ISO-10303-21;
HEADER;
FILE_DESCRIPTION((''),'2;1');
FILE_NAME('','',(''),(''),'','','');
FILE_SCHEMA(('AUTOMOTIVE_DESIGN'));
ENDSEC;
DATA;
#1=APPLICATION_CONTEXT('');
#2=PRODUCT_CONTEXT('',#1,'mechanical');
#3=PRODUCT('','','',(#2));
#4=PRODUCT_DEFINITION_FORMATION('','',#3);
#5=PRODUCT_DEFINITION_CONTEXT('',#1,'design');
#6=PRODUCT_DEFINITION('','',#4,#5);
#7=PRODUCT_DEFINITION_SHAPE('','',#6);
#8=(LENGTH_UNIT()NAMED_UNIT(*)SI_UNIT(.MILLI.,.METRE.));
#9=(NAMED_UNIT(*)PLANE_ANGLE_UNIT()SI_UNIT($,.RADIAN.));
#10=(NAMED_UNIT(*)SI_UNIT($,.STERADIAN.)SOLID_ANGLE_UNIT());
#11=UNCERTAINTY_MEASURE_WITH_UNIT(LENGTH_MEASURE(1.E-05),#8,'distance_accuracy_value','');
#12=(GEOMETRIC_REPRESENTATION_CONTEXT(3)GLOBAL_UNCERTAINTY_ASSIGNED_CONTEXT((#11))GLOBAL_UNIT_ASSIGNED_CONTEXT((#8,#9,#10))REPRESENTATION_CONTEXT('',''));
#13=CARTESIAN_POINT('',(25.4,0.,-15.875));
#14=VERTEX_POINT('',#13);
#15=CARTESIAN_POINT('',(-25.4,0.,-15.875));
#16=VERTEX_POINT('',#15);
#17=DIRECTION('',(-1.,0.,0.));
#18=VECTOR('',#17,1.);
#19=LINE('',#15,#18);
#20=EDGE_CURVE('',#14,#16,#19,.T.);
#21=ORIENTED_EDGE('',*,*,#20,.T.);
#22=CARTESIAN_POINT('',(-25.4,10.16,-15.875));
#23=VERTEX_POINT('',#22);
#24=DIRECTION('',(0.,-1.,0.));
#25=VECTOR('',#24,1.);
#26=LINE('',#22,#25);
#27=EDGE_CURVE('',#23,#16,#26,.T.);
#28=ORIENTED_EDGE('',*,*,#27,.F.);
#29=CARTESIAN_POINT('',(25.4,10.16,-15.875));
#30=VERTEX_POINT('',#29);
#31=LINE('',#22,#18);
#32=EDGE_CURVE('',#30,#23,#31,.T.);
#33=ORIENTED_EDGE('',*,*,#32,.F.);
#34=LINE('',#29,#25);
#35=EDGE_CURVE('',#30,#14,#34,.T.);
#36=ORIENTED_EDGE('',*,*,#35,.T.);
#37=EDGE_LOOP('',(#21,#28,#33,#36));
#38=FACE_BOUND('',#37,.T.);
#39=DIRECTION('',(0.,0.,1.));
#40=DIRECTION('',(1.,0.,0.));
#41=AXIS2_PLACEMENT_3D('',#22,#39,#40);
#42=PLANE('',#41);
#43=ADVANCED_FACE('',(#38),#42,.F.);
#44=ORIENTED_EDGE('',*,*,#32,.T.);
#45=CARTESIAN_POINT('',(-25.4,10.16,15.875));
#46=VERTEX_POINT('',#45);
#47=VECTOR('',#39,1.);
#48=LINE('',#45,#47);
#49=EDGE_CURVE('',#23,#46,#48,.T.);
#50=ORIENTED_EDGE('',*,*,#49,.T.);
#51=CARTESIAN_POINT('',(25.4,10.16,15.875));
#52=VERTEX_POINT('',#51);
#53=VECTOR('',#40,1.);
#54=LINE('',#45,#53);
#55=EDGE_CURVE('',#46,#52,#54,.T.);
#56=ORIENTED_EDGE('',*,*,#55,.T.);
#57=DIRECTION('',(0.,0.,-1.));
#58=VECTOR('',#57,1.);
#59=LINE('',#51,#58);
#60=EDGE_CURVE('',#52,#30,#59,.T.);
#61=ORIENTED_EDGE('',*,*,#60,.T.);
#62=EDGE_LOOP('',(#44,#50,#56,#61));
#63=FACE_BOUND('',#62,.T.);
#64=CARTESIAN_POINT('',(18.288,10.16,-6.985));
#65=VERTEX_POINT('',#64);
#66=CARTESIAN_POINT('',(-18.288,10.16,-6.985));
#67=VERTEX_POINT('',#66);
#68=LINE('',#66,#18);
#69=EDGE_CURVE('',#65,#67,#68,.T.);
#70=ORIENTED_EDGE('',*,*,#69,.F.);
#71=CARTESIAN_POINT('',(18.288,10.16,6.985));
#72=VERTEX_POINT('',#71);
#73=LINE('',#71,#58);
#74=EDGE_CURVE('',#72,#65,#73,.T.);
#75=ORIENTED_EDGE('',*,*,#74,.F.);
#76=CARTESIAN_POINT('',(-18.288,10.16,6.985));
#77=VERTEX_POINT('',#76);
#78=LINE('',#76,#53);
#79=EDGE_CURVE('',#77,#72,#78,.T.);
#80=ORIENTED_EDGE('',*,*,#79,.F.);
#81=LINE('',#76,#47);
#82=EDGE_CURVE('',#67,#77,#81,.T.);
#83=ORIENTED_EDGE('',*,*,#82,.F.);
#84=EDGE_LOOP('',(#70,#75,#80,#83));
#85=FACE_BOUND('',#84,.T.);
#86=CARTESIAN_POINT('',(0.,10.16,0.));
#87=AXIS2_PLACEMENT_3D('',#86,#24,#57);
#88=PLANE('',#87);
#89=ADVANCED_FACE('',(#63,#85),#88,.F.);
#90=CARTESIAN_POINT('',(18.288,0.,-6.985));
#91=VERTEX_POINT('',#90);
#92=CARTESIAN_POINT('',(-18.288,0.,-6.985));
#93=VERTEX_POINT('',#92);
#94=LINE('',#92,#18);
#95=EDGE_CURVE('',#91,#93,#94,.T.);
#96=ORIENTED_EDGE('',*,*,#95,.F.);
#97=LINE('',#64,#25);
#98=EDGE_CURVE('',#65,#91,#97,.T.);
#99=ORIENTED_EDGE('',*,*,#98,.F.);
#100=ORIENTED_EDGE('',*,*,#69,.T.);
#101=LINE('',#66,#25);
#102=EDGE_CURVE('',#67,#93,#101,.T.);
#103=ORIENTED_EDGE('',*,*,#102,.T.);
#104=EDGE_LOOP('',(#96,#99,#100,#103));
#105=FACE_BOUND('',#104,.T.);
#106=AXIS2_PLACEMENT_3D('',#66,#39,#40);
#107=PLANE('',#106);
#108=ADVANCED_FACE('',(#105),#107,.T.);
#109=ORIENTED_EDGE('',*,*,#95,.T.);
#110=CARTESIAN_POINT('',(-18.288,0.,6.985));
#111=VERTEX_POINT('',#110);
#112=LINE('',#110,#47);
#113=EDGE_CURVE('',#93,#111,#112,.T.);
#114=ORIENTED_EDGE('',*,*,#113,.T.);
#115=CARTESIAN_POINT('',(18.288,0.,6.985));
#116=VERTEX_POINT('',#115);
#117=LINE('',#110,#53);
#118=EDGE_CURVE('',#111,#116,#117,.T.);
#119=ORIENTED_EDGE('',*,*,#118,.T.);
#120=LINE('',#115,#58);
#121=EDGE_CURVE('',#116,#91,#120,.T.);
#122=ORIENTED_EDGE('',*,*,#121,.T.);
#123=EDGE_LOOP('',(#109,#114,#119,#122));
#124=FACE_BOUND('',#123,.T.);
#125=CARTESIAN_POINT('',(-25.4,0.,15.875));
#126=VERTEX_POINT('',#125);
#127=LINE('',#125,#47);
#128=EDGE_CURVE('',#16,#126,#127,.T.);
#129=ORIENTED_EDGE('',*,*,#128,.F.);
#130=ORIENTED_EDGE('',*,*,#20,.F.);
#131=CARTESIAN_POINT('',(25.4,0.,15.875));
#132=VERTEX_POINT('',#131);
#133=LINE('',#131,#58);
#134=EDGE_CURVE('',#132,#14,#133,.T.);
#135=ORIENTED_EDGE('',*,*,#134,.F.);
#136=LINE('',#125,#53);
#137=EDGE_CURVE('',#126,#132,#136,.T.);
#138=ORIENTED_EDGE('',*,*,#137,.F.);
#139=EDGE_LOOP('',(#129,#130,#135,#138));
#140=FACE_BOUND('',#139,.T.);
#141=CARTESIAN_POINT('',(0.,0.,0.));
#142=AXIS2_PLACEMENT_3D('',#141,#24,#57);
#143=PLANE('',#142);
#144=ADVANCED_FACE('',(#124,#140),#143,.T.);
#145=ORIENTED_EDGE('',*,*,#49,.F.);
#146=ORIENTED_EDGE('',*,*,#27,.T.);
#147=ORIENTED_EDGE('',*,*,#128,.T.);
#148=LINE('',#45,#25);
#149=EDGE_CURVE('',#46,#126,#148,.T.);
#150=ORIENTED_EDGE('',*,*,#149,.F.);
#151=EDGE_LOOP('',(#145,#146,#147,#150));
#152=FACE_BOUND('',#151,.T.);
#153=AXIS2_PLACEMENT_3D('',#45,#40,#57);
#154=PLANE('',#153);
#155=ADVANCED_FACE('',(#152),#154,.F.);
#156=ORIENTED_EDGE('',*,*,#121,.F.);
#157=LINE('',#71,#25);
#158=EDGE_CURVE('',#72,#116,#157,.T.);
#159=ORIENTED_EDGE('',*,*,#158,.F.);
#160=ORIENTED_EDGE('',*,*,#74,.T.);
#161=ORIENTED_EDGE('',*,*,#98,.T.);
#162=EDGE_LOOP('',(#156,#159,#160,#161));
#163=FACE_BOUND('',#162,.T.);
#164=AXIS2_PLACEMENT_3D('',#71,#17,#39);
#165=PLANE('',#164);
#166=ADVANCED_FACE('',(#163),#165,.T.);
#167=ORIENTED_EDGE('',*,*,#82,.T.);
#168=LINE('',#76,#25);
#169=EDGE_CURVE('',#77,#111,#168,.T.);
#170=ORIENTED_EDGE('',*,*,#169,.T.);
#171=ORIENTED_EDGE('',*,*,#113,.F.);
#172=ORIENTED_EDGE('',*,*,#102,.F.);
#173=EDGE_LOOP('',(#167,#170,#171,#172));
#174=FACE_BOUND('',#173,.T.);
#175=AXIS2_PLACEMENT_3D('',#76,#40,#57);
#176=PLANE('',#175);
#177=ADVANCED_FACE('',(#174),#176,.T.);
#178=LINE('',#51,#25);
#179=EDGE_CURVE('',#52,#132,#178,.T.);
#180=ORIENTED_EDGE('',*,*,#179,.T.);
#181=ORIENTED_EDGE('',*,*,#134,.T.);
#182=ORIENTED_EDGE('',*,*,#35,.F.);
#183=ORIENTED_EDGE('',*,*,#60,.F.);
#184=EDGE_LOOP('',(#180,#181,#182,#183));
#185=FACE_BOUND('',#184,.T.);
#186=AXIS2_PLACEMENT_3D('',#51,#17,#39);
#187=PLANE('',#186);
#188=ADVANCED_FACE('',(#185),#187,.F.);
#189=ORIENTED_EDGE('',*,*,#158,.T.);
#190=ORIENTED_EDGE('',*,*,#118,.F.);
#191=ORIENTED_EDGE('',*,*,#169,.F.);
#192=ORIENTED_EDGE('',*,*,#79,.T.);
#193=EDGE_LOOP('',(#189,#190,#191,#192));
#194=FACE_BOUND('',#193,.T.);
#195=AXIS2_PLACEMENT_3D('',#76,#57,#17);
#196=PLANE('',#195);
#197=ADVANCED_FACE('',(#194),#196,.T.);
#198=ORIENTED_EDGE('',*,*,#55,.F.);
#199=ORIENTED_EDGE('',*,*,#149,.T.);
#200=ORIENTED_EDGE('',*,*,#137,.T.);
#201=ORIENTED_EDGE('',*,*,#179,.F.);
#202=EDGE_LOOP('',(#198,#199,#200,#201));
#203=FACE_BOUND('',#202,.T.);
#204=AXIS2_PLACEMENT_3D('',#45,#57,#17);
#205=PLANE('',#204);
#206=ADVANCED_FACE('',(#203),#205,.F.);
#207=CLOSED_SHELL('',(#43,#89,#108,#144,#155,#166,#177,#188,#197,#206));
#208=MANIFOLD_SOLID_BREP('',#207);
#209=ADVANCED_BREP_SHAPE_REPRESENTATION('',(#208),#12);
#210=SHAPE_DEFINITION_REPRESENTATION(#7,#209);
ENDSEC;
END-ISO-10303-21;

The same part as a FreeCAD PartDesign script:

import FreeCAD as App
import Part
import Sketcher

V = App.Vector
Q = App.Units.Quantity

doc = App.newDocument("Part")
body = doc.addObject("PartDesign::Body", "Body")

# Sketch on XZ plane
sketch1 = body.newObject("Sketcher::SketchObject", "Sketch")
sketch1.AttachmentSupport = (doc.getObject("XZ_Plane"), [""])
sketch1.MapMode = "FlatFace"
sketch1.addGeometry([
    Part.LineSegment(V(-25, -16, 0), V(-25, 16, 0)),  # 0
    Part.LineSegment(V(-25, 16, 0), V(25, 16, 0)),  # 1
    Part.LineSegment(V(25, 16, 0), V(25, -16, 0)),  # 2
    Part.LineSegment(V(25, -16, 0), V(-25, -16, 0)),  # 3
    Part.LineSegment(V(18, 7, 0), V(-18, 7, 0)),  # 4
    Part.LineSegment(V(-18, 7, 0), V(-18, -7, 0)),  # 5
    Part.LineSegment(V(-18, -7, 0), V(18, -7, 0)),  # 6
    Part.LineSegment(V(18, -7, 0), V(18, 7, 0)),  # 7
], False)
sketch1.addConstraint([
    Sketcher.Constraint("Coincident", 0, 2, 1, 1),
    Sketcher.Constraint("Coincident", 1, 2, 2, 1),
    Sketcher.Constraint("Coincident", 2, 2, 3, 1),
    Sketcher.Constraint("Coincident", 3, 2, 0, 1),
    Sketcher.Constraint("Coincident", 4, 2, 5, 1),
    Sketcher.Constraint("Coincident", 5, 2, 6, 1),
    Sketcher.Constraint("Coincident", 6, 2, 7, 1),
    Sketcher.Constraint("Coincident", 7, 2, 4, 1),
    Sketcher.Constraint("Vertical", 0),
    Sketcher.Constraint("Horizontal", 1),
    Sketcher.Constraint("Vertical", 2),
    Sketcher.Constraint("Horizontal", 3),
    Sketcher.Constraint("Horizontal", 4),
    Sketcher.Constraint("Vertical", 5),
    Sketcher.Constraint("Horizontal", 6),
    Sketcher.Constraint("Vertical", 7),
    Sketcher.Constraint("Symmetric", 0, 2, 2, 2, -1, 1),
    Sketcher.Constraint("Symmetric", 4, 2, 6, 2, -1, 1),
    Sketcher.Constraint("DistanceX", 1, 1, 1, 2, Q("2 in")),
    Sketcher.Constraint("DistanceX", 4, 2, 4, 1, Q("1.44 in")),
    Sketcher.Constraint("DistanceY", 0, 1, 0, 2, Q("1.25 in")),
    Sketcher.Constraint("DistanceY", 5, 2, 5, 1, Q("0.55 in")),
])
pad1 = body.newObject("PartDesign::Pad", "Pad")
pad1.Profile = sketch1
pad1.Length = Q("0.4 in")
pad1.Reversed = True

doc.recompute()
